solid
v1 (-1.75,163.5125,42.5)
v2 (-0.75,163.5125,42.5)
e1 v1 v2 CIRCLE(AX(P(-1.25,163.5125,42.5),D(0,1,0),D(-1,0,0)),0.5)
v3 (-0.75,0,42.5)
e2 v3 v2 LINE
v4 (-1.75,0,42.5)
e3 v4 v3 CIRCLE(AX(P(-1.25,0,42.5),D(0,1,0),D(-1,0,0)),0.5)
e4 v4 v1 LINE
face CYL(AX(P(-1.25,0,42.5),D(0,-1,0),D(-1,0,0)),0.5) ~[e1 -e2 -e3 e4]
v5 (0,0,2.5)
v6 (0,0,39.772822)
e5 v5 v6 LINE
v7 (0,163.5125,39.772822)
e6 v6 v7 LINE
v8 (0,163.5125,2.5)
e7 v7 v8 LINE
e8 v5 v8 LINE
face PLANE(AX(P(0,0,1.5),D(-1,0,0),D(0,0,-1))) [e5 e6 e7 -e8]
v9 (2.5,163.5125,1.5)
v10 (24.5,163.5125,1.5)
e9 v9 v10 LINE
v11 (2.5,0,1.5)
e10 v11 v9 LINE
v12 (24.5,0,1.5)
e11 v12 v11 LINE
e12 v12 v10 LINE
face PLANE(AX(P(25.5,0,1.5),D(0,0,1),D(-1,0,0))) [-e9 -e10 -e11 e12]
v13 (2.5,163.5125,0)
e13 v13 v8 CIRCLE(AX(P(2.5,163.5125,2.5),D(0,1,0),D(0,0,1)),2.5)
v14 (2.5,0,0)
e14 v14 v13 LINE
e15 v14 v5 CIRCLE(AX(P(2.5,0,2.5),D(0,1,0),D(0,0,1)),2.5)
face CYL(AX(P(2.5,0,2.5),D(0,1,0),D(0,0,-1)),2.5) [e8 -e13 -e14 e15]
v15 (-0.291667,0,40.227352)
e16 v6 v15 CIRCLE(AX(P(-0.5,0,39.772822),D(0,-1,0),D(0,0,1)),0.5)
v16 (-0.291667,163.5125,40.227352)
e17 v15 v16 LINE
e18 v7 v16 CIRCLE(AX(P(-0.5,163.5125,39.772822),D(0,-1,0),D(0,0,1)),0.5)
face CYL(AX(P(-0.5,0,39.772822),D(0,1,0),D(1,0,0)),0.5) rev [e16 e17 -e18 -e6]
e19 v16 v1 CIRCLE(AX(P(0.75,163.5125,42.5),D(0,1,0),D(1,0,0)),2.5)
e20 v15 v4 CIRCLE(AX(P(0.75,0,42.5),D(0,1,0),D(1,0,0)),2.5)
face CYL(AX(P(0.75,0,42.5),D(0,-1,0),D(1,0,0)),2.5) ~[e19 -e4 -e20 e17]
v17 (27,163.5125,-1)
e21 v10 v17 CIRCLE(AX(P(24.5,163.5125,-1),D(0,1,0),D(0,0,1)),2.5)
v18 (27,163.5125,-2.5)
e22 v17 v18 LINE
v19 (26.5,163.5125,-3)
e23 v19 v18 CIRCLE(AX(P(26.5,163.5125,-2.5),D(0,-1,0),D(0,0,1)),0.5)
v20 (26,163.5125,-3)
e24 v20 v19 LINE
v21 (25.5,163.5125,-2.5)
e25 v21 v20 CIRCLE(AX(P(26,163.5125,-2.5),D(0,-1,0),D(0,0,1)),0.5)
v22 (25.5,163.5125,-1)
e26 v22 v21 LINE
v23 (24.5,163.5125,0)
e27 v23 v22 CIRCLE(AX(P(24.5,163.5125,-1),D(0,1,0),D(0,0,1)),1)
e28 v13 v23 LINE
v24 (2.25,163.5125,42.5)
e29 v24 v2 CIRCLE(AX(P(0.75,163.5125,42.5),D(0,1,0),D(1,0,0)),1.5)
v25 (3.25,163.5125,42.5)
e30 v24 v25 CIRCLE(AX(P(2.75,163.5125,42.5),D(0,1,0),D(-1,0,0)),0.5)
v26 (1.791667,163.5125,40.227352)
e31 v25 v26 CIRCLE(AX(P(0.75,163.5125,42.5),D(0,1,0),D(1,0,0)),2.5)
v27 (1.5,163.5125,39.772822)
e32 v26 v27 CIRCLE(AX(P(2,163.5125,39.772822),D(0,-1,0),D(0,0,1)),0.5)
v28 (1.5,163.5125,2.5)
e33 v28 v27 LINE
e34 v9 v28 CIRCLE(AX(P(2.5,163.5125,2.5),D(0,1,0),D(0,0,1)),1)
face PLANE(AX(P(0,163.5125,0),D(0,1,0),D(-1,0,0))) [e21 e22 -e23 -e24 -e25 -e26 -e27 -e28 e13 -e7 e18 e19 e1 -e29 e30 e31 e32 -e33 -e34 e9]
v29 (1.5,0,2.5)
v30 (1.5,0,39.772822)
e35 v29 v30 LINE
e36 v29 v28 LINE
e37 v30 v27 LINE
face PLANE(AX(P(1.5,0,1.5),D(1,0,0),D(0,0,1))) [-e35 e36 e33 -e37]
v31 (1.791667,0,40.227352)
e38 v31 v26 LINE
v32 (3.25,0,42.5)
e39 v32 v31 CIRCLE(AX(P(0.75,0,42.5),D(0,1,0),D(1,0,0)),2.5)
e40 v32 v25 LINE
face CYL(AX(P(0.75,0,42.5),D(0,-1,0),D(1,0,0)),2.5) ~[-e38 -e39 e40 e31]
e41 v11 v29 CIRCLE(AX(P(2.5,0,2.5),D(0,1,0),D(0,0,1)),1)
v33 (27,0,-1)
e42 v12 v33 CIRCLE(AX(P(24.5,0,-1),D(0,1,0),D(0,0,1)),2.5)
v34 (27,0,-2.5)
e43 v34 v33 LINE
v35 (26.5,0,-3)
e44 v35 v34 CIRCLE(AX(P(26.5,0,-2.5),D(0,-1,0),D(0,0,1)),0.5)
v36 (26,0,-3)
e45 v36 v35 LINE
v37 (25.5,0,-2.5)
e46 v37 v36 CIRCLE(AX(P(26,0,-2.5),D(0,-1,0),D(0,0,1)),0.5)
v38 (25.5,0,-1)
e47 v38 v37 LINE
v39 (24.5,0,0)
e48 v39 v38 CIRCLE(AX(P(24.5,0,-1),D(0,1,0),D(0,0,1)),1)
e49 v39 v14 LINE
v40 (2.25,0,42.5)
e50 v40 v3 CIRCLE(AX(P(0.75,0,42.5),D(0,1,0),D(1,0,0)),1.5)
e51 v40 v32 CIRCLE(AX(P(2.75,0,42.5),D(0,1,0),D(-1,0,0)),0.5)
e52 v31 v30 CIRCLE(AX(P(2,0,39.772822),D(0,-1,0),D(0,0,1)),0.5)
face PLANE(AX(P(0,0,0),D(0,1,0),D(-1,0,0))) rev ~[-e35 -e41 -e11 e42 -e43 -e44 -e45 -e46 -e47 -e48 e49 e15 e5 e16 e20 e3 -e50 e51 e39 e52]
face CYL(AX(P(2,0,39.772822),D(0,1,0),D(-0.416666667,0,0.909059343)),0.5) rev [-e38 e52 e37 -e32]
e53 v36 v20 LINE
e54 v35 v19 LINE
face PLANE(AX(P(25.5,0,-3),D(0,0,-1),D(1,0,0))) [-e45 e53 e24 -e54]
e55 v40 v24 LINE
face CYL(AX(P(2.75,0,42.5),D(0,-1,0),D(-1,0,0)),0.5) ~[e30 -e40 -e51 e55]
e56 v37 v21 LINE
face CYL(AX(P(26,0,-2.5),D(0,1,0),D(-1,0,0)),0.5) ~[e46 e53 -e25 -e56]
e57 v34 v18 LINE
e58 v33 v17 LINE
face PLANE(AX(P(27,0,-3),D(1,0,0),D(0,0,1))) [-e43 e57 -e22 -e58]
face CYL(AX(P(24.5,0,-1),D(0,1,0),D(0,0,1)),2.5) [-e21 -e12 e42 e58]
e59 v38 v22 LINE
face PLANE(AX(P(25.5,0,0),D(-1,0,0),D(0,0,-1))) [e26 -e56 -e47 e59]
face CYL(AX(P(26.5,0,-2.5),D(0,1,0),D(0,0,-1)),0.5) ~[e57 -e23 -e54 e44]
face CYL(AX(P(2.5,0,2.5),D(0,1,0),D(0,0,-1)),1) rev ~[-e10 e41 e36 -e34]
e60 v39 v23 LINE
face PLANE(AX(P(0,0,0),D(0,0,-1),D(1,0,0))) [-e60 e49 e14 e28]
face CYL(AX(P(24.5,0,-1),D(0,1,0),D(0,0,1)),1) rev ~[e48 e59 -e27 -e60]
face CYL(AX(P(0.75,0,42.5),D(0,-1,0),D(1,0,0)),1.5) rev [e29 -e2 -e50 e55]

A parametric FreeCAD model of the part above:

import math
import FreeCAD as App
import Part
import Sketcher

V = App.Vector


def edges_at(feature, points):
    """Names of the edges that pass closest to the given points."""
    edges = feature.Shape.Edges
    near = lambda p: min(range(len(edges)), key=lambda i: edges[i].distToShape(Part.Vertex(*p))[0])
    return sorted({f"Edge{near(p) + 1}" for p in points})

doc = App.newDocument("Part")
body = doc.addObject("PartDesign::Body", "Body")

# Sketch on XZ plane
sketch1 = body.newObject("Sketcher::SketchObject", "Sketch")
sketch1.AttachmentSupport = (doc.getObject("XZ_Plane"), [""])
sketch1.MapMode = "FlatFace"
sketch1.addGeometry([
    Part.LineSegment(V(0, 0, 0), V(0, 40.115152, 0)),  # 0
    Part.ArcOfCircle(Part.Circle(V(0.75, 42.5, 0), V(0, 0, 1), 2.5), math.radians(180), math.radians(252.542397)),  # 1
    Part.ArcOfCircle(Part.Circle(V(-1.25, 42.5, 0), V(0, 0, 1), 0.5), math.radians(0), math.radians(180)),  # 2
    Part.ArcOfCircle(Part.Circle(V(0.75, 42.5, 0), V(0, 0, 1), 1.5), math.radians(180), math.radians(360)),  # 3
    Part.ArcOfCircle(Part.Circle(V(2.75, 42.5, 0), V(0, 0, 1), 0.5), math.radians(0), math.radians(180)),  # 4
    Part.ArcOfCircle(Part.Circle(V(0.75, 42.5, 0), V(0, 0, 1), 2.5), math.radians(-72.542397), math.radians(0)),  # 5
    Part.LineSegment(V(1.5, 40.115152, 0), V(1.5, 1.5, 0)),  # 6
    Part.LineSegment(V(1.5, 1.5, 0), V(27, 1.5, 0)),  # 7
    Part.LineSegment(V(27, 1.5, 0), V(27, -3, 0)),  # 8
    Part.LineSegment(V(27, -3, 0), V(25.5, -3, 0)),  # 9
    Part.LineSegment(V(25.5, -3, 0), V(25.5, 0, 0)),  # 10
    Part.LineSegment(V(25.5, 0, 0), V(0, 0, 0)),  # 11
], False)
sketch1.addConstraint([
    Sketcher.Constraint("Coincident", 0, 2, 1, 2),
    Sketcher.Constraint("Tangent", 1, 1, 2, 2),
    Sketcher.Constraint("Tangent", 2, 1, 3, 1),
    Sketcher.Constraint("Tangent", 3, 2, 4, 2),
    Sketcher.Constraint("Tangent", 4, 1, 5, 2),
    Sketcher.Constraint("Coincident", 5, 1, 6, 1),
    Sketcher.Constraint("Coincident", 6, 2, 7, 1),
    Sketcher.Constraint("Coincident", 7, 2, 8, 1),
    Sketcher.Constraint("Coincident", 8, 2, 9, 1),
    Sketcher.Constraint("Coincident", 9, 2, 10, 1),
    Sketcher.Constraint("Coincident", 10, 2, 11, 1),
    Sketcher.Constraint("Coincident", 11, 2, 0, 1),
    Sketcher.Constraint("Vertical", 0),
    Sketcher.Constraint("Vertical", 6),
    Sketcher.Constraint("Horizontal", 7),
    Sketcher.Constraint("Vertical", 8),
    Sketcher.Constraint("Horizontal", 9),
    Sketcher.Constraint("Vertical", 10),
    Sketcher.Constraint("Horizontal", 11),
    Sketcher.Constraint("Coincident", 11, 2, -1, 1),
    Sketcher.Constraint("Coincident", 3, 3, 1, 3),
    Sketcher.Constraint("Coincident", 5, 3, 1, 3),
    Sketcher.Constraint("Equal", 2, 4),
    Sketcher.Constraint("Horizontal", 1, 3, 2, 3),
    Sketcher.Constraint("Horizontal", 3, 3, 4, 3),
    Sketcher.Constraint("Horizontal", 0, 2, 5, 1),
    Sketcher.Constraint("Equal", 7, 11),
    Sketcher.Constraint("Radius", 2, 0.5),
    Sketcher.Constraint("Radius", 3, 1.5),
    Sketcher.Constraint("DistanceY", 10, 1, 10, 2, 3.0),
    Sketcher.Constraint("DistanceX", 9, 2, 9, 1, 1.5),
    Sketcher.Constraint("DistanceY", 8, 2, 8, 1, 4.5),
    Sketcher.Constraint("DistanceX", -1, 1, 7, 2, 27.0),
    Sketcher.Constraint("DistanceY", 6, 2, 1, 3, 41.0),
])
pad1 = body.newObject("PartDesign::Pad", "Pad")
pad1.Profile = sketch1
pad1.Length = 163.5125
pad1.Reversed = True
doc.recompute()

fillet = body.newObject("PartDesign::Fillet", "Fillet")
fillet.Base = (pad1, edges_at(pad1, [(0, 81.756, 0), (27, 81.756, 1.5)]))
fillet.Radius = 2.5
doc.recompute()

fillet2 = body.newObject("PartDesign::Fillet", "Fillet001")
fillet2.Base = (fillet, edges_at(fillet, [(1.5, 81.756, 1.5), (25.5, 81.756, 0)]))
fillet2.Radius = 1
doc.recompute()

fillet3 = body.newObject("PartDesign::Fillet", "Fillet002")
fillet3.Base = (fillet2, edges_at(fillet2, [
    (0, 81.756, 40.115),
    (1.5, 81.756, 40.115),
    (27, 81.756, -3),
    (25.5, 81.756, -3),
]))
fillet3.Radius = 0.5

doc.recompute()
